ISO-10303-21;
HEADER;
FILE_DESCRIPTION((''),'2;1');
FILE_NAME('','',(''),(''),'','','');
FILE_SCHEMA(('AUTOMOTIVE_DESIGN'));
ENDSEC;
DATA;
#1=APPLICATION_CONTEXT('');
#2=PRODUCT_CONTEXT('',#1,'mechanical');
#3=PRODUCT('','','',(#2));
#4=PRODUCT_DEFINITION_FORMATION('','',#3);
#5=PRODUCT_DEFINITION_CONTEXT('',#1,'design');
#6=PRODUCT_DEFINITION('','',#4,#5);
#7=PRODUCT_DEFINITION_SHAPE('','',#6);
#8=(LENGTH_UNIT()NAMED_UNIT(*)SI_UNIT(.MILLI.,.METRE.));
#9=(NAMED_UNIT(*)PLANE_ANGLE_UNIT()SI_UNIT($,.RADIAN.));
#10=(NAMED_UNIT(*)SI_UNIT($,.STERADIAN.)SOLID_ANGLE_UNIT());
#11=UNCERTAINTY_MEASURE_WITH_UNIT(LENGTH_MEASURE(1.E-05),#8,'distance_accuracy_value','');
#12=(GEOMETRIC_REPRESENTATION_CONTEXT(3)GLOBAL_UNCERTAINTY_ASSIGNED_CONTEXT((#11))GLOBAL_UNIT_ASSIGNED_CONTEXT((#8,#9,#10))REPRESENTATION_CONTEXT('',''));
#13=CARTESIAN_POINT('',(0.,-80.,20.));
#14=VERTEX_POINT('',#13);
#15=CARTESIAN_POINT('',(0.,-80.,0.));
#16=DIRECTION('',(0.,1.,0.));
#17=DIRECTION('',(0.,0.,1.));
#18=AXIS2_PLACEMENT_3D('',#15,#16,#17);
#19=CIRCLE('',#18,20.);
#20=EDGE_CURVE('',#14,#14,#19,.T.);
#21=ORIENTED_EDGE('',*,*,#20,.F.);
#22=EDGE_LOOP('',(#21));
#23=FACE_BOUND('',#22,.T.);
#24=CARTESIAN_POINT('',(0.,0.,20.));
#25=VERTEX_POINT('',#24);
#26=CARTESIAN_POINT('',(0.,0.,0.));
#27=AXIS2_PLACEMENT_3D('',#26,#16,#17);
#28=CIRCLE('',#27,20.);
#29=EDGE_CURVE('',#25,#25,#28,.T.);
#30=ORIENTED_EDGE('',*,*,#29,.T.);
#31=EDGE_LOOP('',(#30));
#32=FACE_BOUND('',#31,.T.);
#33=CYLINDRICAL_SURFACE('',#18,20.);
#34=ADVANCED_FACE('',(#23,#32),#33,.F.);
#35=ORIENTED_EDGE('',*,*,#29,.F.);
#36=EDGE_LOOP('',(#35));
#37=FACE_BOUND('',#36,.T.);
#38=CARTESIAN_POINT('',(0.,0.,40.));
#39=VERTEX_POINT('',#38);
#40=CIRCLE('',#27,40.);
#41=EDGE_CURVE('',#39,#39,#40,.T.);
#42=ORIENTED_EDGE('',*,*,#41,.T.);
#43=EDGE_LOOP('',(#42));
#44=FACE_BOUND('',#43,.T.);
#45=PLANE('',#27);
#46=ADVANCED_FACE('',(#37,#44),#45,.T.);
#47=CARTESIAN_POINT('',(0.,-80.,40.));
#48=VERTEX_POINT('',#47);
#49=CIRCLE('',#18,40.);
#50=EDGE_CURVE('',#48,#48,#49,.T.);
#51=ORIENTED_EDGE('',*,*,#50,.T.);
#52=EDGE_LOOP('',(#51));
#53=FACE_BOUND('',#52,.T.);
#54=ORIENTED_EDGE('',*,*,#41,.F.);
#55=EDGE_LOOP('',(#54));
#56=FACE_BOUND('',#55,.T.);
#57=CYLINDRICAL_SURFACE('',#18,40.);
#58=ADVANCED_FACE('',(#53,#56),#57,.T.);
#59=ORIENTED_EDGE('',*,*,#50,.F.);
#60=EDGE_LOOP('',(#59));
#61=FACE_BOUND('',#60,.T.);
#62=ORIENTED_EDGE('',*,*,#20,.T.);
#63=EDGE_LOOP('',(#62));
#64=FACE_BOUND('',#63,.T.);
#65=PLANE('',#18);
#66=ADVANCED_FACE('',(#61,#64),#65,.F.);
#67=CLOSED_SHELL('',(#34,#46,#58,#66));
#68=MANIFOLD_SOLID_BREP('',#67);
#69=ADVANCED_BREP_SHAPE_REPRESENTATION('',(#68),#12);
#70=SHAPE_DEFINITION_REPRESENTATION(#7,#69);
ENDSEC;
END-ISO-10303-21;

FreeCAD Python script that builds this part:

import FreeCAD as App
import Part
import Sketcher
Q = App.Units.Quantity

doc = App.newDocument("Part")
params = doc.addObject("Spreadsheet::Sheet", "Params")
for row, (alias, value) in enumerate([
    ("sketch1_diameter", "80 mm"),
    ("sketch1_diameter2", "40 mm"),
    ("pad1_length", "80 mm"),
], start=1):
    params.set(f"A{row}", alias)
    params.set(f"B{row}", "=" + value)
    params.setAlias(f"B{row}", alias)

body = doc.addObject("PartDesign::Body", "Body")

# Sketch on XZ plane
sketch1 = body.newObject("Sketcher::SketchObject", "Sketch")
sketch1.AttachmentSupport = (doc.getObject("XZ_Plane"), [""])
sketch1.MapMode = "FlatFace"
sketch1.addGeometry([
    Part.Circle(App.Vector(0, 0, 0), App.Vector(0, 0, 1), 40),
    Part.Circle(App.Vector(0, 0, 0), App.Vector(0, 0, 1), 20),
], False)
sketch1.addConstraint([
    Sketcher.Constraint("Coincident", 0, 3, -1, 1),
    Sketcher.Constraint("Coincident", 1, 3, -1, 1),
    Sketcher.Constraint("Diameter", 0, Q("80 mm")),
    Sketcher.Constraint("Diameter", 1, Q("40 mm")),
])
sketch1.setExpression("Constraints[2]", "Params.sketch1_diameter")
sketch1.setExpression("Constraints[3]", "Params.sketch1_diameter2")
pad1 = body.newObject("PartDesign::Pad", "Pad")
pad1.Profile = sketch1
pad1.setExpression("Length", "Params.pad1_length")

doc.recompute()
